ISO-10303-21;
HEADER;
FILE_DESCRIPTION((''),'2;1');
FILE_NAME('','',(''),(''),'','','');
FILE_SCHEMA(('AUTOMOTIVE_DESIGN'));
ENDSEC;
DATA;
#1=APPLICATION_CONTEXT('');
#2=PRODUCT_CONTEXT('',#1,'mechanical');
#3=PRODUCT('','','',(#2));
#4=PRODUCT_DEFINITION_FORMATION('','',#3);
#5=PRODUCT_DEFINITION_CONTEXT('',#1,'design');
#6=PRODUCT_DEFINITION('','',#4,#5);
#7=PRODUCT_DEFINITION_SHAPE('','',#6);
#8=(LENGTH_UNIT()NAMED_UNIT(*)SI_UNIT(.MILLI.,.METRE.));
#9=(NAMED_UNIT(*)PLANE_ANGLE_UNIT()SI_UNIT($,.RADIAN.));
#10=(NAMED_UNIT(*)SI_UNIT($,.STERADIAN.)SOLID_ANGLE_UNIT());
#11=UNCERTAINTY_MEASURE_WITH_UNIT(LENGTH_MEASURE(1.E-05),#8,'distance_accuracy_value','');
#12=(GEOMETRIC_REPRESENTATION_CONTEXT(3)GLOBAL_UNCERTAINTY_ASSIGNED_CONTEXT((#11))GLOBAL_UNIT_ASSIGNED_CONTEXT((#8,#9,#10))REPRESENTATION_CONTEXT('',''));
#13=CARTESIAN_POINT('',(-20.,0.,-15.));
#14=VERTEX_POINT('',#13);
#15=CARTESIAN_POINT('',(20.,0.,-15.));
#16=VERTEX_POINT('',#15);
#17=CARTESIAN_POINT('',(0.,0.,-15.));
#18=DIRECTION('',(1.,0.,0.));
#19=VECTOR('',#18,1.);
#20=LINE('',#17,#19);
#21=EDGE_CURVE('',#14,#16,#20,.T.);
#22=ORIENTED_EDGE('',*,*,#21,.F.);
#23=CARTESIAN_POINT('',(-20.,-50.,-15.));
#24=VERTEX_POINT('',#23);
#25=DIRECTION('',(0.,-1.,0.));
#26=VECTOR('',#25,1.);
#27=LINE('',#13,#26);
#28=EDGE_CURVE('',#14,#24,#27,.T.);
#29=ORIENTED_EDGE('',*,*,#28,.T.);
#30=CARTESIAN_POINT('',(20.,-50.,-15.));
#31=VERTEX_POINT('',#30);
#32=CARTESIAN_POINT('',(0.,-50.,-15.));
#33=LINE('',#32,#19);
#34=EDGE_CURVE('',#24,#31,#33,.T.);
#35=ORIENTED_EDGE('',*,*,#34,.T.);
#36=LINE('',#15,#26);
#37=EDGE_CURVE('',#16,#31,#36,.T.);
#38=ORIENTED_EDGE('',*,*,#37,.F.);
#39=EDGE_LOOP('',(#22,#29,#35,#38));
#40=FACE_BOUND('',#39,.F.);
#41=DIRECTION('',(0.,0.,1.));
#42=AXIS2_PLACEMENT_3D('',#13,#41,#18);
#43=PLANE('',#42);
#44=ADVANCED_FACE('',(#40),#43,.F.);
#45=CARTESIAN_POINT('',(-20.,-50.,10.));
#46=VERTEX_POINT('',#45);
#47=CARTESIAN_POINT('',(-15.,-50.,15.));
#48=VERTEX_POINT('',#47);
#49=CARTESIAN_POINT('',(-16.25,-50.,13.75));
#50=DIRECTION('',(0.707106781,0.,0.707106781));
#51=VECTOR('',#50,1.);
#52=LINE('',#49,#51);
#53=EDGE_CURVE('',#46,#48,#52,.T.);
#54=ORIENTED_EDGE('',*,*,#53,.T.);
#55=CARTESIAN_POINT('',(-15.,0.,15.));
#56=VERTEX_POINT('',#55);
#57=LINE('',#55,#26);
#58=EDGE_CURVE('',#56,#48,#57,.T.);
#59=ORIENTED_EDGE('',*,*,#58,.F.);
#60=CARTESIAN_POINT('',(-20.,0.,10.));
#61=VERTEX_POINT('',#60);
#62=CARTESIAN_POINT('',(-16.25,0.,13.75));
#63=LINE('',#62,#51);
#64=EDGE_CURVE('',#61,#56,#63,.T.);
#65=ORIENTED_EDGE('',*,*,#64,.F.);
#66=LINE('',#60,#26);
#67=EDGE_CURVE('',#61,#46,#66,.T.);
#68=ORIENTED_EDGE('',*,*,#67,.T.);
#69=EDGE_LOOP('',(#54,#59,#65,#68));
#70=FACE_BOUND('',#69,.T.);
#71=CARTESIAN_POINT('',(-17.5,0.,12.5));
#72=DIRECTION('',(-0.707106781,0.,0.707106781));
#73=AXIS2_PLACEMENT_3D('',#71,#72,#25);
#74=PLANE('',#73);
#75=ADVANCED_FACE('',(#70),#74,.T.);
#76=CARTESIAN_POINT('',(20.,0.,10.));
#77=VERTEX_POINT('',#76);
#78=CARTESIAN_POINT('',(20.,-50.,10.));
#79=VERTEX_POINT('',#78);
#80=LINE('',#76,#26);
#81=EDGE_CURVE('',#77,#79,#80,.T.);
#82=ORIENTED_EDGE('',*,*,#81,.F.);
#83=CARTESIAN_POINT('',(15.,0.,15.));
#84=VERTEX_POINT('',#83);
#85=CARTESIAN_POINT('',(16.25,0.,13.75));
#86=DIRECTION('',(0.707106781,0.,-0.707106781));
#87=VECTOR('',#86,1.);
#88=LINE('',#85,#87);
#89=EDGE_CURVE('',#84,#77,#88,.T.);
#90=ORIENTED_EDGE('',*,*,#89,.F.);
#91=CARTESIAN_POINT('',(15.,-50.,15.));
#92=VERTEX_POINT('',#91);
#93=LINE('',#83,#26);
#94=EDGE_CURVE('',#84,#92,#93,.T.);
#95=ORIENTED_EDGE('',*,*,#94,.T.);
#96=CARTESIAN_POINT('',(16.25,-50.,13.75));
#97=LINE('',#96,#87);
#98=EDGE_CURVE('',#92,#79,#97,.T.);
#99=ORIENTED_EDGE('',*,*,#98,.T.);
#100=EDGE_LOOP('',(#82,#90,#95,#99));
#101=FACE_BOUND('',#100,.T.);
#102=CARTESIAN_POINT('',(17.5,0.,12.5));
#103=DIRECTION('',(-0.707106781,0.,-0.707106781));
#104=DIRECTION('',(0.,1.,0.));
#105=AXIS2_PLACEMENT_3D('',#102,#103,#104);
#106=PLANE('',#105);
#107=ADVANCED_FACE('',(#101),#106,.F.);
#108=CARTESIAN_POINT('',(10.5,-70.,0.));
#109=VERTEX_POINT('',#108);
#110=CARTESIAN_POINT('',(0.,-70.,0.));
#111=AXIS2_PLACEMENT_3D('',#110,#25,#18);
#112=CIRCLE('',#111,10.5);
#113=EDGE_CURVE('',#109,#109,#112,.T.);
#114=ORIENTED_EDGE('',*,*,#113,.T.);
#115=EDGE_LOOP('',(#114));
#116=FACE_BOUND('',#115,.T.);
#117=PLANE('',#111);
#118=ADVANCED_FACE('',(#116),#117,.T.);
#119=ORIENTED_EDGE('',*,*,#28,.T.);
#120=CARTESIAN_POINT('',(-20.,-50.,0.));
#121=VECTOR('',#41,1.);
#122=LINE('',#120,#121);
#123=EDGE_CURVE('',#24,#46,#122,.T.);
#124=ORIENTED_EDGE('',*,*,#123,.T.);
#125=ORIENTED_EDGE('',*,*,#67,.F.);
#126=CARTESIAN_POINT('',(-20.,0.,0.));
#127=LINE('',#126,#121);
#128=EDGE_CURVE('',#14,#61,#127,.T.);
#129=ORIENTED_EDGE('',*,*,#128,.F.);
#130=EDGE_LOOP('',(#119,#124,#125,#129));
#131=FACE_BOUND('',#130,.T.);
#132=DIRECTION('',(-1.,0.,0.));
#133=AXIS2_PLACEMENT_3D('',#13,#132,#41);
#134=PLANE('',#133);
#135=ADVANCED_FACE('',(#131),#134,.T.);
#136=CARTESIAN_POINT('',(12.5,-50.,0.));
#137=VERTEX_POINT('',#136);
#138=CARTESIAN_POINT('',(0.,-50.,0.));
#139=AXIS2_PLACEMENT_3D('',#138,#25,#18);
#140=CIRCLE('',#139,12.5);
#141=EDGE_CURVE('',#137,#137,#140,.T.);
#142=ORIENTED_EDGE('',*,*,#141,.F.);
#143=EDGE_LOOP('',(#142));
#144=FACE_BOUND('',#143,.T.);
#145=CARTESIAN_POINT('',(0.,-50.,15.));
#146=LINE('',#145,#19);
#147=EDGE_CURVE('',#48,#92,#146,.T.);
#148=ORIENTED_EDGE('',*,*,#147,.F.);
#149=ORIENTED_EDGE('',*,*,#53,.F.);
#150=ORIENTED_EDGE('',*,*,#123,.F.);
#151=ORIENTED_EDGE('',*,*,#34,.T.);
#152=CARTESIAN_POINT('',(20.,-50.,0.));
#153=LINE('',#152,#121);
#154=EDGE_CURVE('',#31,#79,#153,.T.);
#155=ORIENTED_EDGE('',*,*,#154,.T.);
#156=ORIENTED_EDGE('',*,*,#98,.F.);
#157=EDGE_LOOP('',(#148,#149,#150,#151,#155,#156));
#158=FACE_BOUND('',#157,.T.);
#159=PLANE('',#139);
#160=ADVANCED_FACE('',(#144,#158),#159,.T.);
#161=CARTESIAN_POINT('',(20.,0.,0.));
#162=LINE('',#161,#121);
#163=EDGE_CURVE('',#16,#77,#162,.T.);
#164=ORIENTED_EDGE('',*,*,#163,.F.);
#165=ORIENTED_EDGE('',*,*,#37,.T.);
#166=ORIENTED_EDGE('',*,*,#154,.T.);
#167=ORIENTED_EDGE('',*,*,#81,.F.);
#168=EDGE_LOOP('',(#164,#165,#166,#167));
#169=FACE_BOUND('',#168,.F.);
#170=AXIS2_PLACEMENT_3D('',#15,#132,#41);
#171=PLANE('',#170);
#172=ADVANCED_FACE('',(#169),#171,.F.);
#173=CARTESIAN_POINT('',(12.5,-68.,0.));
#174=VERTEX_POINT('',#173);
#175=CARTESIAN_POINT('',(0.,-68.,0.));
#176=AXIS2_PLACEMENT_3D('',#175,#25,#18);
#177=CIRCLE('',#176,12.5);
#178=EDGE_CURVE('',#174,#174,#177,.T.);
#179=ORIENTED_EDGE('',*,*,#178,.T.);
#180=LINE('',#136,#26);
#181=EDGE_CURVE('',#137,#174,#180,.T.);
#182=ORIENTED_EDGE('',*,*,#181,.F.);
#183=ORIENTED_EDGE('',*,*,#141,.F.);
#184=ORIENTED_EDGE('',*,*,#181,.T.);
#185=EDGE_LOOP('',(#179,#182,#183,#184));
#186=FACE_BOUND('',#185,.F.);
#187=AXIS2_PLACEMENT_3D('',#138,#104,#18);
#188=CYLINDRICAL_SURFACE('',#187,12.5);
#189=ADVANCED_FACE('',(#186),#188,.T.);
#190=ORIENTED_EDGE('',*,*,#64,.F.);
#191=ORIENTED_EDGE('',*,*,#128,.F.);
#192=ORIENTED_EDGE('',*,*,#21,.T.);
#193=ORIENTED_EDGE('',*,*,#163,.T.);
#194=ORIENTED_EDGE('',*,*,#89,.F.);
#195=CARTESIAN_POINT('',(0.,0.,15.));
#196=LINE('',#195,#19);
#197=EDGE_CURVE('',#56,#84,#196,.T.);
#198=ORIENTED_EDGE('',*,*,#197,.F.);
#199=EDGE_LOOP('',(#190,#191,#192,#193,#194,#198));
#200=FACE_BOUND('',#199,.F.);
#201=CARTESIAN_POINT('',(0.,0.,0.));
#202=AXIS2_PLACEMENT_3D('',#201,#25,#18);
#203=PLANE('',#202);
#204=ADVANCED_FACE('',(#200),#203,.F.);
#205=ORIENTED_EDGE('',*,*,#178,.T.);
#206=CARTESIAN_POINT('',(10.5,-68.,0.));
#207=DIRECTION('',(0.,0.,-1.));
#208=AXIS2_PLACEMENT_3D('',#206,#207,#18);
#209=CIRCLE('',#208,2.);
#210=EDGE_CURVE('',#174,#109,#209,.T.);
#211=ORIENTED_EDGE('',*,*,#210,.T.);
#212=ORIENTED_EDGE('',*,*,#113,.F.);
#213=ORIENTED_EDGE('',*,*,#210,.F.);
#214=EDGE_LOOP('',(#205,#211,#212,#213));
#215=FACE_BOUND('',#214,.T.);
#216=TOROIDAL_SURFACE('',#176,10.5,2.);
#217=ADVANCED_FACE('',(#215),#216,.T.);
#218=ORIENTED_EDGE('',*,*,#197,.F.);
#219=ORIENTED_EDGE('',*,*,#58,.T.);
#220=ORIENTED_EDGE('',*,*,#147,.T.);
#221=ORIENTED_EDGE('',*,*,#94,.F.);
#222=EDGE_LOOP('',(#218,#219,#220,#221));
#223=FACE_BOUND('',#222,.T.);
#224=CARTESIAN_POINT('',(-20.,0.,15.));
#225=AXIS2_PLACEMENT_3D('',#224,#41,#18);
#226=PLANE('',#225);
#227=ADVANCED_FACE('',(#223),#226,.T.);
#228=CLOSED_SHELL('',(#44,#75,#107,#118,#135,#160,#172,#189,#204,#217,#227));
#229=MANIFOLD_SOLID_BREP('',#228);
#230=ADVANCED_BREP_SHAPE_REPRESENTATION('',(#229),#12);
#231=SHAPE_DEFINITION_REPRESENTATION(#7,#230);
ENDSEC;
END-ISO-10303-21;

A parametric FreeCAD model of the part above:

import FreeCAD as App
import Part
import Sketcher


def edges_at(feature, points):
    """Names of the edges that pass closest to the given points."""
    edges = feature.Shape.Edges
    near = lambda p: min(range(len(edges)), key=lambda i: edges[i].distToShape(Part.Vertex(*p))[0])
    return sorted({f"Edge{near(p) + 1}" for p in points})


def add_polygon(sketch, points):
    """Adds a closed chain of lines whose ends are joined by coincident constraints."""
    first, n = sketch.GeometryCount, len(points)
    for a, b in zip(points, points[1:] + points[:1]):
        sketch.addGeometry(Part.LineSegment(App.Vector(*a, 0), App.Vector(*b, 0)), False)
    for i in range(n):
        sketch.addConstraint(Sketcher.Constraint("Coincident", first + i, 2, first + (i + 1) % n, 1))

doc = App.newDocument("Part")
body = doc.addObject("PartDesign::Body", "Body")

sketch1 = doc.addObject("Sketcher::SketchObject", "Sketch")
body.addObject(sketch1)
sketch1.AttachmentSupport = (doc.XZ_Plane, [""])
sketch1.MapMode = "FlatFace"
add_polygon(sketch1, [(-20, 15), (-20, -15), (20, -15), (20, 15)])
sketch1.addConstraint([
    Sketcher.Constraint("Vertical", 0),
    Sketcher.Constraint("Horizontal", 1),
    Sketcher.Constraint("Vertical", 2),
    Sketcher.Constraint("Horizontal", 3),
    Sketcher.Constraint("Symmetric", 0, 2, 2, 2, -1, 1),
    Sketcher.Constraint("DistanceX", 1, 1, 1, 2, 40.0),
    Sketcher.Constraint("DistanceY", 0, 2, 0, 1, 30.0),
])
pad1 = doc.addObject("PartDesign::Pad", "Pad")
body.addObject(pad1)
pad1.Profile = sketch1
pad1.Length = 50

sketch2 = doc.addObject("Sketcher::SketchObject", "Sketch001")
body.addObject(sketch2)
sketch2.AttachmentSupport = (doc.XZ_Plane, [""])
sketch2.MapMode = "FlatFace"
sketch2.AttachmentOffset = App.Placement(App.Vector(0, 0, 50), App.Rotation())
sketch2.addGeometry(Part.Circle(App.Vector(0, 0, 0), App.Vector(0, 0, 1), 12), False)
sketch2.addConstraint([
    Sketcher.Constraint("Coincident", 0, 3, -1, 1),
    Sketcher.Constraint("Diameter", 0, 25.0),
])
pad2 = doc.addObject("PartDesign::Pad", "Pad001")
body.addObject(pad2)
pad2.Profile = sketch2
pad2.Length = 20
doc.recompute()

fillet = doc.addObject("PartDesign::Fillet", "Fillet")
body.addObject(fillet)
fillet.Base = (pad2, edges_at(pad2, [(-12.5, -70, 0)]))
fillet.Radius = 2
doc.recompute()

chamfer = doc.addObject("PartDesign::Chamfer", "Chamfer")
body.addObject(chamfer)
chamfer.Base = (fillet, edges_at(fillet, [(-20, -25, 15), (20, -25, 15)]))
chamfer.Size = 5

doc.recompute()
